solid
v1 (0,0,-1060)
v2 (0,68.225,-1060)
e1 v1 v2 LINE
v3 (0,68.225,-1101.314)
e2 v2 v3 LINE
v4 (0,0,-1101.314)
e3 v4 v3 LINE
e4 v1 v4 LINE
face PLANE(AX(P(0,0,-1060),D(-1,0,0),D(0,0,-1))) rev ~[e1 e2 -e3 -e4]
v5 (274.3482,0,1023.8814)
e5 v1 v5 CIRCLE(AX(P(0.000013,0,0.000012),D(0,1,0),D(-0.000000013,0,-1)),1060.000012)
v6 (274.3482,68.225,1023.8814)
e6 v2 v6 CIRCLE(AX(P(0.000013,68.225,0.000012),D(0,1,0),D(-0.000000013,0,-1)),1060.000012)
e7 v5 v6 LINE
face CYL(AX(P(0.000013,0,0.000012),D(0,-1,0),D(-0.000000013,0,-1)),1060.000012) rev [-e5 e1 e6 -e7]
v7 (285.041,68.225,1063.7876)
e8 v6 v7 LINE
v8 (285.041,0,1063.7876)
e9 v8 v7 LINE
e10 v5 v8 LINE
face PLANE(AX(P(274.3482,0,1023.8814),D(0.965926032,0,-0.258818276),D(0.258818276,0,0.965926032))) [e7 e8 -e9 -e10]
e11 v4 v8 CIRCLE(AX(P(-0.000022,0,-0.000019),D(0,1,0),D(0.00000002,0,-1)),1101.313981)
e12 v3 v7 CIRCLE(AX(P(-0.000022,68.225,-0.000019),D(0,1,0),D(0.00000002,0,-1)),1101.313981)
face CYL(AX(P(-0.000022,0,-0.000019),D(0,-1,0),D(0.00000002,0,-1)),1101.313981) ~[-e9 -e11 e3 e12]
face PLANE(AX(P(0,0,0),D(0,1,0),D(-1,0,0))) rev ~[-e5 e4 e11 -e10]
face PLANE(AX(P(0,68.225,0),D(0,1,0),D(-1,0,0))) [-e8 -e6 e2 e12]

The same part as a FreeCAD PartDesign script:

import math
import FreeCAD as App
import Part
import Sketcher
Q = App.Units.Quantity

doc = App.newDocument("Part")
body = doc.addObject("PartDesign::Body", "Body")

# Sketch on XZ plane
sketch1 = body.newObject("Sketcher::SketchObject", "Sketch")
sketch1.AttachmentSupport = (doc.getObject("XZ_Plane"), [""])
sketch1.MapMode = "FlatFace"
sketch1.addGeometry([
    Part.LineSegment(App.Vector(0, -1060, 0), App.Vector(0, -1101, 0)),
    Part.ArcOfCircle(Part.Circle(App.Vector(0, 0, 0), App.Vector(0, 0, 1), 1101), math.radians(75), math.radians(270)),
    Part.LineSegment(App.Vector(285, 1064, 0), App.Vector(274, 1024, 0)),
    Part.ArcOfCircle(Part.Circle(App.Vector(0, 0, 0), App.Vector(0, 0, 1), 1060), math.radians(75), math.radians(270)),
], False)
sketch1.addConstraint([
    Sketcher.Constraint("Coincident", 0, 2, 1, 2),
    Sketcher.Constraint("Coincident", 1, 1, 2, 1),
    Sketcher.Constraint("Coincident", 2, 2, 3, 1),
    Sketcher.Constraint("Coincident", 3, 2, 0, 1),
    Sketcher.Constraint("Vertical", 0),
    Sketcher.Constraint("Coincident", 1, 3, -1, 1),
    Sketcher.Constraint("Coincident", 3, 3, -1, 1),
    Sketcher.Constraint("PointOnObject", 0, 2, -2),
    Sketcher.Constraint("Radius", 3, 1060.0),
    Sketcher.Constraint("Radius", 1, 1101.314),
    Sketcher.Constraint("Angle", 2, Q("-105 deg")),
    Sketcher.Constraint("DistanceX", -1, 1, 2, 2, 274.3482),
])
pad1 = body.newObject("PartDesign::Pad", "Pad")
pad1.Profile = sketch1
pad1.Length = 68.225
pad1.Reversed = True

doc.recompute()
